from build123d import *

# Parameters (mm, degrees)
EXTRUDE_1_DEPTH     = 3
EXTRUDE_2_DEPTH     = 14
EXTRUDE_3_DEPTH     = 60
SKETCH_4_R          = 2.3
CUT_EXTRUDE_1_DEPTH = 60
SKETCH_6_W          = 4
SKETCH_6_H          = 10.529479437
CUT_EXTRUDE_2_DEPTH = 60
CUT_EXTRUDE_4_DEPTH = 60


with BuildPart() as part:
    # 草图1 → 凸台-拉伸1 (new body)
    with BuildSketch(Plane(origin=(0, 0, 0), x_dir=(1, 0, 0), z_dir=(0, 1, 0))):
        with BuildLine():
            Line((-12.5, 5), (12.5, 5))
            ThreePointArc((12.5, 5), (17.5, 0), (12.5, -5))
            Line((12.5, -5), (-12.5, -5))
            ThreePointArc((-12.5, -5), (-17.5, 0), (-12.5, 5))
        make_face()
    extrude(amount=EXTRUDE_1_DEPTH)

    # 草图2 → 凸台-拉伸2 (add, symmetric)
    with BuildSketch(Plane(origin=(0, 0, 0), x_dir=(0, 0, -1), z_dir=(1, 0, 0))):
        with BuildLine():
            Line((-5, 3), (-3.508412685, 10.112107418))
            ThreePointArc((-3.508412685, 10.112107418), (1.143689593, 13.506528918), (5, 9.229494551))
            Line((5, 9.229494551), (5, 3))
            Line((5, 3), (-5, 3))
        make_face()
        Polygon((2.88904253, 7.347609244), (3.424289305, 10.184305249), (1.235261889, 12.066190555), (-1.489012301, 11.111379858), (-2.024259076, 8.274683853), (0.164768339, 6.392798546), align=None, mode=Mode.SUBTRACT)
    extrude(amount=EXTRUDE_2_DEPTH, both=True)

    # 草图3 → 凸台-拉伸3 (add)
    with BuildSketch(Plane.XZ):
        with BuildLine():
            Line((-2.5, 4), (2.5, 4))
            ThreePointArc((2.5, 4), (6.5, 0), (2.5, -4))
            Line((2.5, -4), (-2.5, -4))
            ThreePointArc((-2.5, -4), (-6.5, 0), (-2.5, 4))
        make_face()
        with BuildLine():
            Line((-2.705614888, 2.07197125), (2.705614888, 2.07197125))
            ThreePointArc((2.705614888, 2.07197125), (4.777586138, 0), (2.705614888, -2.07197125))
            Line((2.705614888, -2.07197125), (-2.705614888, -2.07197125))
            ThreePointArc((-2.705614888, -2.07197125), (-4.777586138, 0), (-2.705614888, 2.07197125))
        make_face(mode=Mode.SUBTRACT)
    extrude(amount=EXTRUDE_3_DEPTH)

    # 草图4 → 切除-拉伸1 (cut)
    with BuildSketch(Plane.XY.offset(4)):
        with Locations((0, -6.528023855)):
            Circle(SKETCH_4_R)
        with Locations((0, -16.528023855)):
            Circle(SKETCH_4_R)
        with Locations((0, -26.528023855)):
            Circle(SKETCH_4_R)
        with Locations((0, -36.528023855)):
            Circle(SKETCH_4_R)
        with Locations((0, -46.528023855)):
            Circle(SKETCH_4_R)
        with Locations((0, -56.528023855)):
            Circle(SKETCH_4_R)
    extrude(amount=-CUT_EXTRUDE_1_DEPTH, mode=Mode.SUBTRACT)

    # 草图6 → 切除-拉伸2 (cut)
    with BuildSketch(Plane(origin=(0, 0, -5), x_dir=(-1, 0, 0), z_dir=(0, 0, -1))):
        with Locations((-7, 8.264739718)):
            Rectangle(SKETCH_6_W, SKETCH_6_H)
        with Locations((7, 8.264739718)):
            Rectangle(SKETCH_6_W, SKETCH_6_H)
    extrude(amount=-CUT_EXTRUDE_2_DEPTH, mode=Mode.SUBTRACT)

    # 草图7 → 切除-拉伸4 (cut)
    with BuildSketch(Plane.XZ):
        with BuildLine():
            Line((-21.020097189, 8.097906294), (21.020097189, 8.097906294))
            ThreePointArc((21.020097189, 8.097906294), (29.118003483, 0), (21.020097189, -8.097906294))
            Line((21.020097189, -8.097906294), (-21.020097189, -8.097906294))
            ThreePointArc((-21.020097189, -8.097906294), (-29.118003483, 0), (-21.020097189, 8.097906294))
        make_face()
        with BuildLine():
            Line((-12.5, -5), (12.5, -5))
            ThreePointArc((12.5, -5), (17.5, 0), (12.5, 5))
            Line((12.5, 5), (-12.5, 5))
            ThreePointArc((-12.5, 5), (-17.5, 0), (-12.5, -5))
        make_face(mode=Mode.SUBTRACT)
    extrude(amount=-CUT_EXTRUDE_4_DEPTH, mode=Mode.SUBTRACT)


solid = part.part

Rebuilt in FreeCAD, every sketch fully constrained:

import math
import FreeCAD as App
import Part
import Sketcher
from FreeCAD import Vector
Q = App.Units.Quantity


def add_polygon(sketch, points):
    """Adds a closed chain of lines whose ends are joined by coincident constraints."""
    first, n = sketch.GeometryCount, len(points)
    for a, b in zip(points, points[1:] + points[:1]):
        sketch.addGeometry(Part.LineSegment(App.Vector(*a, 0), App.Vector(*b, 0)), False)
    for i in range(n):
        sketch.addConstraint(Sketcher.Constraint("Coincident", first + i, 2, first + (i + 1) % n, 1))

doc = App.newDocument("Part")
body = doc.addObject("PartDesign::Body", "Body")

sketch1 = doc.addObject("Sketcher::SketchObject", "Sketch")
body.addObject(sketch1)
sketch1.AttachmentSupport = (doc.XZ_Plane, [""])
sketch1.MapMode = "FlatFace"
sketch1.addGeometry([
    Part.LineSegment(Vector(12, -5, 0), Vector(-12, -5, 0)),
    Part.ArcOfCircle(Part.Circle(Vector(-12, 0, 0), Vector(0, 0, 1), 5), math.radians(90), math.radians(270)),
    Part.LineSegment(Vector(-12, 5, 0), Vector(12, 5, 0)),
    Part.ArcOfCircle(Part.Circle(Vector(12, 0, 0), Vector(0, 0, 1), 5), math.radians(-90), math.radians(90)),
], False)
sketch1.addConstraint([
    Sketcher.Constraint("Tangent", 0, 2, 1, 2),
    Sketcher.Constraint("Tangent", 1, 1, 2, 1),
    Sketcher.Constraint("Tangent", 2, 2, 3, 2),
    Sketcher.Constraint("Tangent", 3, 1, 0, 1),
    Sketcher.Constraint("Horizontal", 0),
    Sketcher.Constraint("Horizontal", 2),
    Sketcher.Constraint("Symmetric", 1, 3, 3, 3, -1, 1),
    Sketcher.Constraint("Radius", 1, Q("5 mm")),
    Sketcher.Constraint("DistanceX", 0, 2, 0, 1, Q("25 mm")),
])
pad1 = doc.addObject("PartDesign::Pad", "Pad")
body.addObject(pad1)
pad1.Profile = sketch1
pad1.Length = 3
pad1.Reversed = True

sketch2 = doc.addObject("Sketcher::SketchObject", "Sketch001")
body.addObject(sketch2)
sketch2.AttachmentSupport = (doc.YZ_Plane, [""])
sketch2.MapMode = "FlatFace"
sketch2.addGeometry(Part.LineSegment(Vector(10.1, 3.5, 0), Vector(3, 5, 0)), False)
sketch2.addGeometry(Part.LineSegment(Vector(3, 5, 0), Vector(3, -5, 0)), False)
sketch2.addGeometry(Part.LineSegment(Vector(3, -5, 0), Vector(9.2, -5, 0)), False)
sketch2.addGeometry(Part.ArcOfCircle(Part.Circle(Vector(9.2, -0.7, 0), Vector(0, 0, 1), 4.3), math.radians(-90), math.radians(78)), False)
add_polygon(sketch2, [(7.3, -2.9), (6.4, -0.2), (8.3, 2), (11.1, 1.5), (12.1, -1.2), (10.2, -3.4)])
sketch2.addConstraint([
    Sketcher.Constraint("Coincident", 0, 2, 1, 1),
    Sketcher.Constraint("Coincident", 1, 2, 2, 1),
    Sketcher.Constraint("Tangent", 2, 2, 3, 1),
    Sketcher.Constraint("Tangent", 3, 2, 0, 1),
    Sketcher.Constraint("Vertical", 1),
    Sketcher.Constraint("Horizontal", 2),
    Sketcher.Constraint("Parallel", 4, 7),
    Sketcher.Constraint("Parallel", 5, 8),
    Sketcher.Constraint("Parallel", 6, 9),
    Sketcher.Constraint("Equal", 4, 5),
    Sketcher.Constraint("Equal", 5, 6),
    Sketcher.Constraint("Equal", 6, 7),
    Sketcher.Constraint("DistanceY", 1, 2, 1, 1, Q("10 mm")),
    Sketcher.Constraint("DistanceX", -1, 1, 0, 2, Q("3 mm")),
    Sketcher.Constraint("DistanceY", -1, 1, 0, 2, Q("5 mm")),
    Sketcher.Constraint("Radius", 3, Q("4.299985 mm")),
    Sketcher.Constraint("DistanceX", -1, 1, 4, 2, Q("6.392799 mm")),
    Sketcher.Constraint("DistanceY", 6, 2, 3, 2, Q("2.0194 mm")),
    Sketcher.Constraint("DistanceY", 8, 2, 6, 2, Q("4.913302 mm")),
    Sketcher.Constraint("Distance", 4, Q("2.886751 mm")),
    Sketcher.Constraint("DistanceX", 2, 1, 2, 2, Q("6.229495 mm")),
    Sketcher.Constraint("DistanceY", 4, 2, -1, 1, Q("0.164768 mm")),
    Sketcher.Constraint("DistanceY", -1, 1, 5, 2, Q("2.024259 mm")),
])
pad2 = doc.addObject("PartDesign::Pad", "Pad001")
body.addObject(pad2)
pad2.Profile = sketch2
pad2.Length = 28
pad2.Midplane = True

sketch3 = doc.addObject("Sketcher::SketchObject", "Sketch002")
body.addObject(sketch3)
sketch3.AttachmentSupport = (doc.XZ_Plane, [""])
sketch3.MapMode = "FlatFace"
sketch3.addGeometry([
    Part.LineSegment(Vector(2.5, 4, 0), Vector(-2.5, 4, 0)),
    Part.ArcOfCircle(Part.Circle(Vector(-2.5, 0, 0), Vector(0, 0, 1), 4), math.radians(90), math.radians(270)),
    Part.LineSegment(Vector(-2.5, -4, 0), Vector(2.5, -4, 0)),
    Part.ArcOfCircle(Part.Circle(Vector(2.5, 0, 0), Vector(0, 0, 1), 4), math.radians(-90), math.radians(90)),
    Part.LineSegment(Vector(-2.7, 2.1, 0), Vector(2.7, 2.1, 0)),
    Part.ArcOfCircle(Part.Circle(Vector(2.7, 0, 0), Vector(0, 0, 1), 2.1), math.radians(-90), math.radians(90)),
    Part.LineSegment(Vector(2.7, -2.1, 0), Vector(-2.7, -2.1, 0)),
    Part.ArcOfCircle(Part.Circle(Vector(-2.7, 0, 0), Vector(0, 0, 1), 2.1), math.radians(90), math.radians(270)),
], False)
sketch3.addConstraint([
    Sketcher.Constraint("Tangent", 0, 2, 1, 1),
    Sketcher.Constraint("Tangent", 1, 2, 2, 1),
    Sketcher.Constraint("Tangent", 2, 2, 3, 1),
    Sketcher.Constraint("Tangent", 3, 2, 0, 1),
    Sketcher.Constraint("Tangent", 4, 2, 5, 2),
    Sketcher.Constraint("Tangent", 5, 1, 6, 1),
    Sketcher.Constraint("Tangent", 6, 2, 7, 2),
    Sketcher.Constraint("Tangent", 7, 1, 4, 1),
    Sketcher.Constraint("Horizontal", 0),
    Sketcher.Constraint("Horizontal", 2),
    Sketcher.Constraint("Horizontal", 4),
    Sketcher.Constraint("Horizontal", 6),
    Sketcher.Constraint("Symmetric", 1, 3, 3, 3, -1, 1),
    Sketcher.Constraint("Symmetric", 5, 3, 7, 3, -1, 1),
    Sketcher.Constraint("Radius", 1, Q("4 mm")),
    Sketcher.Constraint("DistanceX", 0, 2, 0, 1, Q("5 mm")),
    Sketcher.Constraint("Radius", 5, Q("2.071971 mm")),
    Sketcher.Constraint("DistanceX", 4, 1, 4, 2, Q("5.41123 mm")),
])
pad3 = doc.addObject("PartDesign::Pad", "Pad002")
body.addObject(pad3)
pad3.Profile = sketch3
pad3.Length = 60

sketch4 = doc.addObject("Sketcher::SketchObject", "Sketch003")
body.addObject(sketch4)
sketch4.AttachmentSupport = (doc.XY_Plane, [""])
sketch4.MapMode = "FlatFace"
sketch4.AttachmentOffset = App.Placement(Vector(0, 0, 4), App.Rotation())
sketch4.addGeometry([
    Part.Circle(Vector(0, -6.5, 0), Vector(0, 0, 1), 2.3),
    Part.Circle(Vector(0, -16.5, 0), Vector(0, 0, 1), 2.3),
    Part.Circle(Vector(0, -26.5, 0), Vector(0, 0, 1), 2.3),
    Part.Circle(Vector(0, -36.5, 0), Vector(0, 0, 1), 2.3),
    Part.Circle(Vector(0, -46.5, 0), Vector(0, 0, 1), 2.3),
    Part.Circle(Vector(0, -56.5, 0), Vector(0, 0, 1), 2.3),
], False)
sketch4.addConstraint([
    Sketcher.Constraint("Equal", 0, 1),
    Sketcher.Constraint("Equal", 1, 2),
    Sketcher.Constraint("Equal", 2, 3),
    Sketcher.Constraint("Equal", 3, 4),
    Sketcher.Constraint("Equal", 4, 5),
    Sketcher.Constraint("PointOnObject", 0, 3, -2),
    Sketcher.Constraint("PointOnObject", 1, 3, -2),
    Sketcher.Constraint("PointOnObject", 2, 3, -2),
    Sketcher.Constraint("PointOnObject", 3, 3, -2),
    Sketcher.Constraint("PointOnObject", 4, 3, -2),
    Sketcher.Constraint("PointOnObject", 5, 3, -2),
    Sketcher.Constraint("Diameter", 0, Q("4.6 mm")),
    Sketcher.Constraint("DistanceY", 1, 3, 0, 3, Q("10 mm")),
    Sketcher.Constraint("DistanceY", 2, 3, 1, 3, Q("10 mm")),
    Sketcher.Constraint("DistanceY", 3, 3, 2, 3, Q("10 mm")),
    Sketcher.Constraint("DistanceY", 4, 3, 3, 3, Q("10 mm")),
    Sketcher.Constraint("DistanceY", 5, 3, 4, 3, Q("10 mm")),
    Sketcher.Constraint("DistanceY", 0, 3, -1, 1, Q("6.528024 mm")),
])
pocket1 = doc.addObject("PartDesign::Pocket", "Pocket")
body.addObject(pocket1)
pocket1.Profile = sketch4
pocket1.Length = 60

sketch5 = doc.addObject("Sketcher::SketchObject", "Sketch004")
body.addObject(sketch5)
sketch5.AttachmentSupport = (doc.XY_Plane, [""])
sketch5.MapMode = "FlatFace"
sketch5.AttachmentOffset = App.Placement(Vector(0, 0, -5), App.Rotation())
add_polygon(sketch5, [(9, 13.5), (9, 3), (5, 3), (5, 13.5)])
add_polygon(sketch5, [(-5, 13.5), (-5, 3), (-9, 3), (-9, 13.5)])
sketch5.addConstraint([
    Sketcher.Constraint("Vertical", 0),
    Sketcher.Constraint("Horizontal", 1),
    Sketcher.Constraint("Vertical", 2),
    Sketcher.Constraint("Horizontal", 3),
    Sketcher.Constraint("Vertical", 4),
    Sketcher.Constraint("Horizontal", 5),
    Sketcher.Constraint("Vertical", 6),
    Sketcher.Constraint("Horizontal", 7),
    Sketcher.Constraint("Symmetric", 1, 2, 4, 2, -2),
    Sketcher.Constraint("Symmetric", 3, 2, 6, 2, -2),
    Sketcher.Constraint("DistanceX", 1, 2, 1, 1, Q("4 mm")),
    Sketcher.Constraint("DistanceX", -1, 1, 0, 2, Q("9 mm")),
    Sketcher.Constraint("DistanceY", -1, 1, 0, 2, Q("3 mm")),
    Sketcher.Constraint("DistanceY", 0, 2, 0, 1, Q("10.529479 mm")),
])
pocket2 = doc.addObject("PartDesign::Pocket", "Pocket001")
body.addObject(pocket2)
pocket2.Profile = sketch5
pocket2.Length = 60
pocket2.Reversed = True

sketch6 = doc.addObject("Sketcher::SketchObject", "Sketch005")
body.addObject(sketch6)
sketch6.AttachmentSupport = (doc.XZ_Plane, [""])
sketch6.MapMode = "FlatFace"
sketch6.addGeometry([
    Part.LineSegment(Vector(21, 8, 0), Vector(-21, 8, 0)),
    Part.ArcOfCircle(Part.Circle(Vector(-21, 0, 0), Vector(0, 0, 1), 8), math.radians(90), math.radians(270)),
    Part.LineSegment(Vector(-21, -8, 0), Vector(21, -8, 0)),
    Part.ArcOfCircle(Part.Circle(Vector(21, 0, 0), Vector(0, 0, 1), 8), math.radians(-90), math.radians(90)),
    Part.ArcOfCircle(Part.Circle(Vector(-12, 0, 0), Vector(0, 0, 1), 5), math.radians(90), math.radians(270)),
    Part.LineSegment(Vector(-12, 5, 0), Vector(12, 5, 0)),
    Part.ArcOfCircle(Part.Circle(Vector(12, 0, 0), Vector(0, 0, 1), 5), math.radians(-90), math.radians(90)),
    Part.LineSegment(Vector(12, -5, 0), Vector(-12, -5, 0)),
], False)
sketch6.addConstraint([
    Sketcher.Constraint("Tangent", 0, 2, 1, 1),
    Sketcher.Constraint("Tangent", 1, 2, 2, 1),
    Sketcher.Constraint("Tangent", 2, 2, 3, 1),
    Sketcher.Constraint("Tangent", 3, 2, 0, 1),
    Sketcher.Constraint("Tangent", 4, 1, 5, 1),
    Sketcher.Constraint("Tangent", 5, 2, 6, 2),
    Sketcher.Constraint("Tangent", 6, 1, 7, 1),
    Sketcher.Constraint("Tangent", 7, 2, 4, 2),
    Sketcher.Constraint("Horizontal", 0),
    Sketcher.Constraint("Horizontal", 2),
    Sketcher.Constraint("Horizontal", 5),
    Sketcher.Constraint("Horizontal", 7),
    Sketcher.Constraint("Symmetric", 1, 3, 3, 3, -1, 1),
    Sketcher.Constraint("Symmetric", 4, 3, 6, 3, -1, 1),
    Sketcher.Constraint("Radius", 4, Q("5 mm")),
    Sketcher.Constraint("DistanceX", 5, 1, 5, 2, Q("25 mm")),
    Sketcher.Constraint("Radius", 1, Q("8.097906 mm")),
    Sketcher.Constraint("DistanceX", 0, 2, 0, 1, Q("42.040194 mm")),
])
pocket3 = doc.addObject("PartDesign::Pocket", "Pocket002")
body.addObject(pocket3)
pocket3.Profile = sketch6
pocket3.Length = 60

doc.recompute()
